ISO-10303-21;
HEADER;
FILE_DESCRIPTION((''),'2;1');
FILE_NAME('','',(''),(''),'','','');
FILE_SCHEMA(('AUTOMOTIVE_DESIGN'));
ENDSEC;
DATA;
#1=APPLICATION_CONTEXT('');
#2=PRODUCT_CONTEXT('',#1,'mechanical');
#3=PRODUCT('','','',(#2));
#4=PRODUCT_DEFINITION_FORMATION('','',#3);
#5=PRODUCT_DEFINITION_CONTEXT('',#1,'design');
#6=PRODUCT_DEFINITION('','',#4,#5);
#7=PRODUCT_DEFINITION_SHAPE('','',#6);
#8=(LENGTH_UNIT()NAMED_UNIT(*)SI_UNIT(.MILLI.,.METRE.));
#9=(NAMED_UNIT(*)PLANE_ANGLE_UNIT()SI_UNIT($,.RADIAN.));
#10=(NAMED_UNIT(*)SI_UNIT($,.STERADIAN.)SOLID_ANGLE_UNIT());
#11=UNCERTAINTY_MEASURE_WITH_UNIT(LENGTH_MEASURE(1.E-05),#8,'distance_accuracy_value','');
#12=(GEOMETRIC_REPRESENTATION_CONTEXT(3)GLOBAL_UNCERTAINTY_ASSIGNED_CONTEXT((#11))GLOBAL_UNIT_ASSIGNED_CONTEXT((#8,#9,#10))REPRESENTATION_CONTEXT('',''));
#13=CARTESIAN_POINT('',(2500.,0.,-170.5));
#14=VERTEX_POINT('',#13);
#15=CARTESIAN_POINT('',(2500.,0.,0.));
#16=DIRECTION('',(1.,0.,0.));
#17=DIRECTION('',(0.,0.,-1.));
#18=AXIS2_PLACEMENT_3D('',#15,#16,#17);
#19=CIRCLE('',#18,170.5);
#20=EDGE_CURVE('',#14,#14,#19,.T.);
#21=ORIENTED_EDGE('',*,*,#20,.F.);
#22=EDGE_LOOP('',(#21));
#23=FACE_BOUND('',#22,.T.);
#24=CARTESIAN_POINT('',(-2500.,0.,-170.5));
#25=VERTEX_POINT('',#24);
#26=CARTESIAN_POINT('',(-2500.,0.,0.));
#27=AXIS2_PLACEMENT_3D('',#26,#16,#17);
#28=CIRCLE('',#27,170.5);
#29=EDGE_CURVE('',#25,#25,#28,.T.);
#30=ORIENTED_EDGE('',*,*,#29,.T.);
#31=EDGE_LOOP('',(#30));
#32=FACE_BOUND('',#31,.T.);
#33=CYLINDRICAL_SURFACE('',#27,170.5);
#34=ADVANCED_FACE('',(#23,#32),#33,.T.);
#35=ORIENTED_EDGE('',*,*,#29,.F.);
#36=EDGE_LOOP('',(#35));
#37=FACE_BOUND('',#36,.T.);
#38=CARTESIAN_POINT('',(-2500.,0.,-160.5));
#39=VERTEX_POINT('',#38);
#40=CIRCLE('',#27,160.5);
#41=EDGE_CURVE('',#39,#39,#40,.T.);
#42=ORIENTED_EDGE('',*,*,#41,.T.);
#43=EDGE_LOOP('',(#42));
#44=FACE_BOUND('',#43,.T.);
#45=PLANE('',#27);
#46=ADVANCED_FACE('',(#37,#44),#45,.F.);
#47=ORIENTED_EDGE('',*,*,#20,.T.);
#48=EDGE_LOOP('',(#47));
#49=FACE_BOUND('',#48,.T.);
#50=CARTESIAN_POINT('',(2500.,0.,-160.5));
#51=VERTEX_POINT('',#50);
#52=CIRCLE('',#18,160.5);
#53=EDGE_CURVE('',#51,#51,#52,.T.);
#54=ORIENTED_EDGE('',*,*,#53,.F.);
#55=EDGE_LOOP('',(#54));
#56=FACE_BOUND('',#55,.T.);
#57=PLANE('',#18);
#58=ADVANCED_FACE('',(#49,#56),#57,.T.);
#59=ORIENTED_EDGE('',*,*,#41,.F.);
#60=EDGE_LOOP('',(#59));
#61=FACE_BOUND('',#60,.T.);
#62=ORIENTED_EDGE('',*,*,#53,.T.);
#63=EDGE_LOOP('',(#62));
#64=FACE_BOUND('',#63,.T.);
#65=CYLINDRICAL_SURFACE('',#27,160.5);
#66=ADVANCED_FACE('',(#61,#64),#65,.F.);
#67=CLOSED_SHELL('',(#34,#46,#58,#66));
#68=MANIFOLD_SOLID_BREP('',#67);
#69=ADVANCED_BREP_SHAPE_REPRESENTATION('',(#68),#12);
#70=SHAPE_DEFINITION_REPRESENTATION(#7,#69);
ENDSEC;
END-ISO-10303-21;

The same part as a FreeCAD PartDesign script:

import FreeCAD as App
import Part
import Sketcher
Q = App.Units.Quantity


def faces_at(feature, points):
    """Names of the faces that lie closest to the given points."""
    faces = feature.Shape.Faces
    near = lambda p: min(range(len(faces)), key=lambda i: faces[i].distToShape(Part.Vertex(*p))[0])
    return sorted({f"Face{near(p) + 1}" for p in points})

doc = App.newDocument("Part")
params = doc.addObject("Spreadsheet::Sheet", "Params")
for row, (alias, value) in enumerate([
    ("sketch1_diameter", "341 mm"),
    ("pad1_length", "2500 mm"),
    ("pad1_length2", "2500 mm"),
    ("thickness_wall", "10 mm"),
], start=1):
    params.set(f"A{row}", alias)
    params.set(f"B{row}", "=" + value)
    params.setAlias(f"B{row}", alias)

body = doc.addObject("PartDesign::Body", "Body")

# Sketch on YZ plane
sketch1 = doc.addObject("Sketcher::SketchObject", "Sketch")
body.addObject(sketch1)
sketch1.AttachmentSupport = (doc.YZ_Plane, [""])
sketch1.MapMode = "FlatFace"
sketch1.addGeometry(Part.Circle(App.Vector(0, 0, 0), App.Vector(0, 0, 1), 170.5), False)
sketch1.addConstraint([
    Sketcher.Constraint("Coincident", 0, 3, -1, 1),
    Sketcher.Constraint("Diameter", 0, Q("341 mm")),
])
sketch1.setExpression("Constraints[1]", "Params.sketch1_diameter")
pad1 = doc.addObject("PartDesign::Pad", "Pad")
body.addObject(pad1)
pad1.Profile = sketch1
pad1.Type = "TwoLengths"
pad1.setExpression("Length", "Params.pad1_length")
pad1.setExpression("Length2", "Params.pad1_length2")
doc.recompute()

thickness = doc.addObject("PartDesign::Thickness", "Thickness")
body.addObject(thickness)
thickness.Base = (pad1, faces_at(pad1, [(-2500, 0, 0), (2500, 0, 0)]))
thickness.setExpression("Value", "Params.thickness_wall")
thickness.Reversed = True
thickness.Join = "Intersection"

doc.recompute()
